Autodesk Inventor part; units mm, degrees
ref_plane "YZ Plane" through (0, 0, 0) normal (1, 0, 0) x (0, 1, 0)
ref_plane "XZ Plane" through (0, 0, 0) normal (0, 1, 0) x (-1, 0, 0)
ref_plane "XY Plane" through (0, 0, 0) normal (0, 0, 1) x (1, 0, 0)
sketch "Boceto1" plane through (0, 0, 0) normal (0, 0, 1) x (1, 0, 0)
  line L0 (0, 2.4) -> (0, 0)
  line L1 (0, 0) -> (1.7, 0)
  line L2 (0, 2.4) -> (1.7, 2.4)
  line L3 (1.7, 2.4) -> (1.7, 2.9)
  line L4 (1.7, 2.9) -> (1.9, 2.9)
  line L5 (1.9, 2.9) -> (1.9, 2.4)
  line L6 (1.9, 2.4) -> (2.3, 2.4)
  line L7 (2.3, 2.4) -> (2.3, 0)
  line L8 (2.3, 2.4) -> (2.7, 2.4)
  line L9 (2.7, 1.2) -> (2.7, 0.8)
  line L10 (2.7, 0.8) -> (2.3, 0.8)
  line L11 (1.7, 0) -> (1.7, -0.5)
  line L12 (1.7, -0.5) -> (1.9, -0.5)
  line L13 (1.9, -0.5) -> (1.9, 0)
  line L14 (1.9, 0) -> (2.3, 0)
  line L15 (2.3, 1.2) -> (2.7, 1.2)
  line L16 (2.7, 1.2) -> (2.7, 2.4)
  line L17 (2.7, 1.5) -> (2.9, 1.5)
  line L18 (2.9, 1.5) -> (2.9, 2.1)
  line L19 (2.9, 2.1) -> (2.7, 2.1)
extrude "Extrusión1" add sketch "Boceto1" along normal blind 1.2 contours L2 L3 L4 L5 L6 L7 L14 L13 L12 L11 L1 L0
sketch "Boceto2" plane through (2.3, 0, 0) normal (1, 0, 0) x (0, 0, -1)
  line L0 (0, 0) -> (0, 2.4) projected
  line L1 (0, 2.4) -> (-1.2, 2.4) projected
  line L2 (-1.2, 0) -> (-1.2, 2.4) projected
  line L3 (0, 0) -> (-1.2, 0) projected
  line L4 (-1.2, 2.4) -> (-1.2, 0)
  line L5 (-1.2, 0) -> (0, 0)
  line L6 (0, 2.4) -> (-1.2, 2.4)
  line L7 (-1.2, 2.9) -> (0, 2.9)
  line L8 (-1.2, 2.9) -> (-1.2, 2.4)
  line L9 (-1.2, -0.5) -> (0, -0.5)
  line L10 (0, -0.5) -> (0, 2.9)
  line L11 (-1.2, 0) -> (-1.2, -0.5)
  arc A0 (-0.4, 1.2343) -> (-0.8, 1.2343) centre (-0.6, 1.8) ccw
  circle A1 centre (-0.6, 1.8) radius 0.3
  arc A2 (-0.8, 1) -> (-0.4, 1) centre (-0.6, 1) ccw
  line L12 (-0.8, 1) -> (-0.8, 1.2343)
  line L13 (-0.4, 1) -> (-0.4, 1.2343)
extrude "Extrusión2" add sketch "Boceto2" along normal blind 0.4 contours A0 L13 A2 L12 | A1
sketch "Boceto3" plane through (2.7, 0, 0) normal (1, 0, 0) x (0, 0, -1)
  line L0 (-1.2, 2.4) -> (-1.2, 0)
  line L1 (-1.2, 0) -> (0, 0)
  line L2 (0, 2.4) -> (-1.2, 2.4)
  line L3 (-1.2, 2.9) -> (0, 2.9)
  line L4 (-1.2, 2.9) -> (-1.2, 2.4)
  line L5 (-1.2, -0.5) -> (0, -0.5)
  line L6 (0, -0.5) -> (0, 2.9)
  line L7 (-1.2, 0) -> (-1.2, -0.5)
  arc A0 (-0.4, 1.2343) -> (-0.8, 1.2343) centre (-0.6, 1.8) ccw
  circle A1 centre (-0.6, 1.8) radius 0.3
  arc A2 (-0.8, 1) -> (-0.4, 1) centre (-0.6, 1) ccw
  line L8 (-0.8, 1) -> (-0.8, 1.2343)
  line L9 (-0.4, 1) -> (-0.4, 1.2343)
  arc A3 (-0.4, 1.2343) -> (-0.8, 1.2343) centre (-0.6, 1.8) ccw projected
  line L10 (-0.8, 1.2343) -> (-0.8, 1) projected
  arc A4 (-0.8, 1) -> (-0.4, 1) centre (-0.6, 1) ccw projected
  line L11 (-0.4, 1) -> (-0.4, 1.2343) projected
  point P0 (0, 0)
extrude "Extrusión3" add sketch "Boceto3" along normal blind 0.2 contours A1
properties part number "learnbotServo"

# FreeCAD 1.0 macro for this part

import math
import FreeCAD as App
import Part
import Sketcher
Q = App.Units.Quantity

doc = App.newDocument("Part")
body = doc.addObject("PartDesign::Body", "Body")

# Sketch on XY plane
sketch1 = doc.addObject("Sketcher::SketchObject", "Sketch")
body.addObject(sketch1)
sketch1.AttachmentSupport = (doc.XY_Plane, [""])
sketch1.MapMode = "FlatFace"
sketch1.addGeometry([
    Part.LineSegment(App.Vector(1.7, 2.4, 0), App.Vector(0, 2.4, 0)),  # 0
    Part.LineSegment(App.Vector(0, 2.4, 0), App.Vector(0, 0, 0)),  # 1
    Part.LineSegment(App.Vector(0, 0, 0), App.Vector(1.7, 0, 0)),  # 2
    Part.LineSegment(App.Vector(1.7, 0, 0), App.Vector(1.7, -0.5, 0)),  # 3
    Part.LineSegment(App.Vector(1.7, -0.5, 0), App.Vector(1.9, -0.5, 0)),  # 4
    Part.LineSegment(App.Vector(1.9, -0.5, 0), App.Vector(1.9, 0, 0)),  # 5
    Part.LineSegment(App.Vector(1.9, 0, 0), App.Vector(2.3, 0, 0)),  # 6
    Part.LineSegment(App.Vector(2.3, 0, 0), App.Vector(2.3, 2.4, 0)),  # 7
    Part.LineSegment(App.Vector(2.3, 2.4, 0), App.Vector(1.9, 2.4, 0)),  # 8
    Part.LineSegment(App.Vector(1.9, 2.4, 0), App.Vector(1.9, 2.9, 0)),  # 9
    Part.LineSegment(App.Vector(1.9, 2.9, 0), App.Vector(1.7, 2.9, 0)),  # 10
    Part.LineSegment(App.Vector(1.7, 2.9, 0), App.Vector(1.7, 2.4, 0)),  # 11
], False)
sketch1.addConstraint([
    Sketcher.Constraint("Coincident", 0, 2, 1, 1),
    Sketcher.Constraint("Coincident", 1, 2, 2, 1),
    Sketcher.Constraint("Coincident", 2, 2, 3, 1),
    Sketcher.Constraint("Coincident", 3, 2, 4, 1),
    Sketcher.Constraint("Coincident", 4, 2, 5, 1),
    Sketcher.Constraint("Coincident", 5, 2, 6, 1),
    Sketcher.Constraint("Coincident", 6, 2, 7, 1),
    Sketcher.Constraint("Coincident", 7, 2, 8, 1),
    Sketcher.Constraint("Coincident", 8, 2, 9, 1),
    Sketcher.Constraint("Coincident", 9, 2, 10, 1),
    Sketcher.Constraint("Coincident", 10, 2, 11, 1),
    Sketcher.Constraint("Coincident", 11, 2, 0, 1),
    Sketcher.Constraint("Horizontal", 0),
    Sketcher.Constraint("Vertical", 1),
    Sketcher.Constraint("Horizontal", 2),
    Sketcher.Constraint("Vertical", 3),
    Sketcher.Constraint("Horizontal", 4),
    Sketcher.Constraint("Vertical", 5),
    Sketcher.Constraint("Horizontal", 6),
    Sketcher.Constraint("Vertical", 7),
    Sketcher.Constraint("Horizontal", 8),
    Sketcher.Constraint("Vertical", 9),
    Sketcher.Constraint("Horizontal", 10),
    Sketcher.Constraint("Vertical", 11),
    Sketcher.Constraint("Coincident", 1, 2, -1, 1),
    Sketcher.Constraint("PointOnObject", 5, 2, -1),
    Sketcher.Constraint("Horizontal", 0, 2, 7, 2),
    Sketcher.Constraint("Vertical", 5, 2, 8, 2),
    Sketcher.Constraint("Vertical", 3, 2, 10, 2),
    Sketcher.Constraint("Equal", 5, 9),
    Sketcher.Constraint("DistanceX", 0, 2, 0, 1, Q("1.7 mm")),
    Sketcher.Constraint("DistanceX", 4, 1, 4, 2, Q("0.2 mm")),
    Sketcher.Constraint("DistanceX", 6, 1, 6, 2, Q("0.4 mm")),
    Sketcher.Constraint("DistanceY", 1, 2, 1, 1, Q("2.4 mm")),
    Sketcher.Constraint("DistanceY", 3, 2, 3, 1, Q("0.5 mm")),
])
pad1 = doc.addObject("PartDesign::Pad", "Pad")
body.addObject(pad1)
pad1.Profile = sketch1
pad1.Length = 1.2

# Sketch on YZ plane
sketch2 = doc.addObject("Sketcher::SketchObject", "Sketch001")
body.addObject(sketch2)
sketch2.AttachmentSupport = (doc.YZ_Plane, [""])
sketch2.MapMode = "FlatFace"
sketch2.AttachmentOffset = App.Placement(App.Vector(0, 0, 2.3), App.Rotation())
sketch2.addGeometry([
    Part.ArcOfCircle(Part.Circle(App.Vector(1.8, 0.6, 0), App.Vector(0, 0, 1), 0.6), math.radians(-161), math.radians(161)),
    Part.LineSegment(App.Vector(1.23, 0.8, 0), App.Vector(1, 0.8, 0)),
    Part.ArcOfCircle(Part.Circle(App.Vector(1, 0.6, 0), App.Vector(0, 0, 1), 0.2), math.radians(90), math.radians(270)),
    Part.LineSegment(App.Vector(1, 0.4, 0), App.Vector(1.23, 0.4, 0)),
], False)
sketch2.addConstraint([
    Sketcher.Constraint("Coincident", 0, 2, 1, 1),
    Sketcher.Constraint("Tangent", 1, 2, 2, 1),
    Sketcher.Constraint("Tangent", 2, 2, 3, 1),
    Sketcher.Constraint("Coincident", 3, 2, 0, 1),
    Sketcher.Constraint("Horizontal", 1),
    Sketcher.Constraint("Horizontal", 3),
    Sketcher.Constraint("Horizontal", 0, 3, 2, 3),
    Sketcher.Constraint("Radius", 0, Q("0.6 mm")),
    Sketcher.Constraint("Radius", 2, Q("0.2 mm")),
    Sketcher.Constraint("DistanceX", -1, 1, 2, 3, Q("1 mm")),
    Sketcher.Constraint("DistanceX", -1, 1, 0, 3, Q("1.8 mm")),
    Sketcher.Constraint("DistanceY", -1, 1, 0, 3, Q("0.6 mm")),
])
pad2 = doc.addObject("PartDesign::Pad", "Pad001")
body.addObject(pad2)
pad2.Profile = sketch2
pad2.Length = 0.4

# Sketch on YZ plane
sketch3 = doc.addObject("Sketcher::SketchObject", "Sketch002")
body.addObject(sketch3)
sketch3.AttachmentSupport = (doc.YZ_Plane, [""])
sketch3.MapMode = "FlatFace"
sketch3.AttachmentOffset = App.Placement(App.Vector(0, 0, 2.7), App.Rotation())
sketch3.addGeometry(Part.Circle(App.Vector(1.8, 0.6, 0), App.Vector(0, 0, 1), 0.3), False)
sketch3.addConstraint([
    Sketcher.Constraint("Diameter", 0, Q("0.6 mm")),
    Sketcher.Constraint("DistanceX", -1, 1, 0, 3, Q("1.8 mm")),
    Sketcher.Constraint("DistanceY", -1, 1, 0, 3, Q("0.6 mm")),
])
pad3 = doc.addObject("PartDesign::Pad", "Pad002")
body.addObject(pad3)
pad3.Profile = sketch3
pad3.Length = 0.2

doc.recompute()
